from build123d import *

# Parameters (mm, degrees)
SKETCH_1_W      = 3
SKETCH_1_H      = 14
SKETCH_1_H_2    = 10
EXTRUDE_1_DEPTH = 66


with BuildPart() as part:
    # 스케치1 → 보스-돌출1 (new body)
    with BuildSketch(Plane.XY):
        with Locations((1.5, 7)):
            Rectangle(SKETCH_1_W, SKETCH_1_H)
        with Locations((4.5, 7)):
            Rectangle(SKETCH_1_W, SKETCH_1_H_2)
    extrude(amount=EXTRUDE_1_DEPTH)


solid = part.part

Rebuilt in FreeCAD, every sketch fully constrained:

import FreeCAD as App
import Part
import Sketcher
from FreeCAD import Vector
Q = App.Units.Quantity


def add_polygon(sketch, points):
    """Adds a closed chain of lines whose ends are joined by coincident constraints."""
    first, n = sketch.GeometryCount, len(points)
    for a, b in zip(points, points[1:] + points[:1]):
        sketch.addGeometry(Part.LineSegment(App.Vector(*a, 0), App.Vector(*b, 0)), False)
    for i in range(n):
        sketch.addConstraint(Sketcher.Constraint("Coincident", first + i, 2, first + (i + 1) % n, 1))

doc = App.newDocument("Part")
body = doc.addObject("PartDesign::Body", "Body")

# Sketch on XY plane
sketch1 = doc.addObject("Sketcher::SketchObject", "Sketch")
body.addObject(sketch1)
sketch1.AttachmentSupport = (doc.XY_Plane, [""])
sketch1.MapMode = "FlatFace"
add_polygon(sketch1, [(0, 14), (0, 0), (3, 0), (3, 2), (6, 2), (6, 12), (3, 12), (3, 14)])  # lines 0-7
sketch1.addConstraint(Sketcher.Constraint("Vertical", 0))
sketch1.addConstraint(Sketcher.Constraint("Horizontal", 1))
sketch1.addConstraint(Sketcher.Constraint("Vertical", 2))
sketch1.addConstraint(Sketcher.Constraint("Horizontal", 3))
sketch1.addConstraint(Sketcher.Constraint("Vertical", 4))
sketch1.addConstraint(Sketcher.Constraint("Horizontal", 5))
sketch1.addConstraint(Sketcher.Constraint("Vertical", 6))
sketch1.addConstraint(Sketcher.Constraint("Horizontal", 7))
sketch1.addConstraint(Sketcher.Constraint("Coincident", 0, 2, -1, 1))
sketch1.addConstraint(Sketcher.Constraint("Vertical", 2, 2, 5, 2))
sketch1.addConstraint(Sketcher.Constraint("Equal", 1, 3))
sketch1.addConstraint(Sketcher.Constraint("Equal", 2, 6))
sketch1.addConstraint(Sketcher.Constraint("DistanceX", 1, 1, 1, 2, Q("3 mm")))
sketch1.addConstraint(Sketcher.Constraint("DistanceY", 0, 2, 0, 1, Q("14 mm")))
sketch1.addConstraint(Sketcher.Constraint("DistanceY", 2, 1, 2, 2, Q("2 mm")))
pad1 = doc.addObject("PartDesign::Pad", "Pad")
body.addObject(pad1)
pad1.Profile = sketch1
pad1.Length = 66

doc.recompute()
